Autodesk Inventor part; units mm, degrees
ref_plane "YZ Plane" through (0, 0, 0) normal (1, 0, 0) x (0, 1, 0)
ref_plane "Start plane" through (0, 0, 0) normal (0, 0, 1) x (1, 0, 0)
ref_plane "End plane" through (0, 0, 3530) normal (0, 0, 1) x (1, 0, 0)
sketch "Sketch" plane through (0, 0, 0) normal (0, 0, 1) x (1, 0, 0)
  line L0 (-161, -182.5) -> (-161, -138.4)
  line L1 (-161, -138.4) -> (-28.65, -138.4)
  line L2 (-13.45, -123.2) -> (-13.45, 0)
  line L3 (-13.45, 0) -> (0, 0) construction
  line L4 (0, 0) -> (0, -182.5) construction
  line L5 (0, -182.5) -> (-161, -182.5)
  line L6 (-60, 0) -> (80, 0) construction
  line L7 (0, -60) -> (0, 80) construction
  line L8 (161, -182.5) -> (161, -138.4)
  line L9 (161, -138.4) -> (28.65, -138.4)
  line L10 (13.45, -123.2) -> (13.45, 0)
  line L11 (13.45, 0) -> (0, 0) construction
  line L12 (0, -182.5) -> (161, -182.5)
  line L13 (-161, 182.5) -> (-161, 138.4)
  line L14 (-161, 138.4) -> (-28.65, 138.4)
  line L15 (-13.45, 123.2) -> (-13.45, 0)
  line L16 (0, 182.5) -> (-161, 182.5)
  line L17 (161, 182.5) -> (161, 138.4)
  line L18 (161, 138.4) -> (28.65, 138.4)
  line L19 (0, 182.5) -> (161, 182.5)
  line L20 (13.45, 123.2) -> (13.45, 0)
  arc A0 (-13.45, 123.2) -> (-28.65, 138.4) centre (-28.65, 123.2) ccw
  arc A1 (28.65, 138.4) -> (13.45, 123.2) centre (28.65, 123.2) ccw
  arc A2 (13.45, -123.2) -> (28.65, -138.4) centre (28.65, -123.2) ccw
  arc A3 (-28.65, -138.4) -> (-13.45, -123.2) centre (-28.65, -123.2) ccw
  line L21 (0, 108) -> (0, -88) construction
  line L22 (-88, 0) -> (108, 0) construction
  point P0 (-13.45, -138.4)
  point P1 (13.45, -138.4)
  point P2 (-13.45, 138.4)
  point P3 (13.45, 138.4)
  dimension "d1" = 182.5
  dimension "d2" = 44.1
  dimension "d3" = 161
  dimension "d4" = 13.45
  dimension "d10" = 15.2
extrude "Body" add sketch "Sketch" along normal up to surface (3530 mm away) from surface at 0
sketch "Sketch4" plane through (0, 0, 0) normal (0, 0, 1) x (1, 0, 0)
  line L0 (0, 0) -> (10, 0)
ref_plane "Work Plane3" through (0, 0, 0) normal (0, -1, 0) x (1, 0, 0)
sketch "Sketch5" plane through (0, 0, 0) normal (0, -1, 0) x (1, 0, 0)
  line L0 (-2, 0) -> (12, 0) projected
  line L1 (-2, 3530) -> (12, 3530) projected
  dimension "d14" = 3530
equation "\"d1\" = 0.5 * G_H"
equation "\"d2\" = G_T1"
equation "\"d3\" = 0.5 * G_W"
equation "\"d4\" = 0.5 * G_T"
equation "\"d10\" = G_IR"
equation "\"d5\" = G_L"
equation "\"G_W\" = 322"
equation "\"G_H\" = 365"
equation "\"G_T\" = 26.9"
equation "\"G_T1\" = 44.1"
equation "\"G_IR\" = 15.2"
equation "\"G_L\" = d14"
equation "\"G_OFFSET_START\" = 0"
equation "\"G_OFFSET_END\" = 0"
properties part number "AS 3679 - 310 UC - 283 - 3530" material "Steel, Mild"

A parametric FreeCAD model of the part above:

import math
import FreeCAD as App
import Part
import Sketcher
Q = App.Units.Quantity

doc = App.newDocument("Part")
body = doc.addObject("PartDesign::Body", "Body")

# Sketch on XY plane
sketch1 = body.newObject("Sketcher::SketchObject", "Sketch")
sketch1.AttachmentSupport = (doc.getObject("XY_Plane"), [""])
sketch1.MapMode = "FlatFace"
sketch1.addGeometry(Part.LineSegment(App.Vector(-161, -138, 0), App.Vector(-161, -182, 0)), False)
sketch1.addGeometry(Part.LineSegment(App.Vector(-161, -182, 0), App.Vector(161, -182, 0)), False)
sketch1.addGeometry(Part.LineSegment(App.Vector(161, -182, 0), App.Vector(161, -138, 0)), False)
sketch1.addGeometry(Part.LineSegment(App.Vector(161, -138, 0), App.Vector(29, -138, 0)), False)
sketch1.addGeometry(Part.ArcOfCircle(Part.Circle(App.Vector(29, -123, 0), App.Vector(0, 0, 1), 15), math.radians(180), math.radians(270)), False)
sketch1.addGeometry(Part.LineSegment(App.Vector(13, -123, 0), App.Vector(13, 123, 0)), False)
sketch1.addGeometry(Part.ArcOfCircle(Part.Circle(App.Vector(29, 123, 0), App.Vector(0, 0, 1), 15), math.radians(90), math.radians(180)), False)
sketch1.addGeometry(Part.LineSegment(App.Vector(29, 138, 0), App.Vector(161, 138, 0)), False)
sketch1.addGeometry(Part.LineSegment(App.Vector(161, 138, 0), App.Vector(161, 182, 0)), False)
sketch1.addGeometry(Part.LineSegment(App.Vector(161, 182, 0), App.Vector(-161, 182, 0)), False)
sketch1.addGeometry(Part.LineSegment(App.Vector(-161, 182, 0), App.Vector(-161, 138, 0)), False)
sketch1.addGeometry(Part.LineSegment(App.Vector(-161, 138, 0), App.Vector(-29, 138, 0)), False)
sketch1.addGeometry(Part.ArcOfCircle(Part.Circle(App.Vector(-29, 123, 0), App.Vector(0, 0, 1), 15), math.radians(0), math.radians(90)), False)
sketch1.addGeometry(Part.LineSegment(App.Vector(-13, 123, 0), App.Vector(-13, -123, 0)), False)
sketch1.addGeometry(Part.ArcOfCircle(Part.Circle(App.Vector(-29, -123, 0), App.Vector(0, 0, 1), 15), math.radians(-90), math.radians(0)), False)
sketch1.addGeometry(Part.LineSegment(App.Vector(-29, -138, 0), App.Vector(-161, -138, 0)), False)
sketch1.addConstraint(Sketcher.Constraint("Coincident", 0, 2, 1, 1))
sketch1.addConstraint(Sketcher.Constraint("Coincident", 1, 2, 2, 1))
sketch1.addConstraint(Sketcher.Constraint("Coincident", 2, 2, 3, 1))
sketch1.addConstraint(Sketcher.Constraint("Tangent", 3, 2, 4, 2))
sketch1.addConstraint(Sketcher.Constraint("Tangent", 4, 1, 5, 1))
sketch1.addConstraint(Sketcher.Constraint("Tangent", 5, 2, 6, 2))
sketch1.addConstraint(Sketcher.Constraint("Tangent", 6, 1, 7, 1))
sketch1.addConstraint(Sketcher.Constraint("Coincident", 7, 2, 8, 1))
sketch1.addConstraint(Sketcher.Constraint("Coincident", 8, 2, 9, 1))
sketch1.addConstraint(Sketcher.Constraint("Coincident", 9, 2, 10, 1))
sketch1.addConstraint(Sketcher.Constraint("Coincident", 10, 2, 11, 1))
sketch1.addConstraint(Sketcher.Constraint("Tangent", 11, 2, 12, 2))
sketch1.addConstraint(Sketcher.Constraint("Tangent", 12, 1, 13, 1))
sketch1.addConstraint(Sketcher.Constraint("Tangent", 13, 2, 14, 2))
sketch1.addConstraint(Sketcher.Constraint("Tangent", 14, 1, 15, 1))
sketch1.addConstraint(Sketcher.Constraint("Coincident", 15, 2, 0, 1))
sketch1.addConstraint(Sketcher.Constraint("Vertical", 0))
sketch1.addConstraint(Sketcher.Constraint("Horizontal", 1))
sketch1.addConstraint(Sketcher.Constraint("Vertical", 2))
sketch1.addConstraint(Sketcher.Constraint("Horizontal", 3))
sketch1.addConstraint(Sketcher.Constraint("Vertical", 5))
sketch1.addConstraint(Sketcher.Constraint("Horizontal", 7))
sketch1.addConstraint(Sketcher.Constraint("Vertical", 8))
sketch1.addConstraint(Sketcher.Constraint("Horizontal", 9))
sketch1.addConstraint(Sketcher.Constraint("Vertical", 10))
sketch1.addConstraint(Sketcher.Constraint("Horizontal", 11))
sketch1.addConstraint(Sketcher.Constraint("Vertical", 13))
sketch1.addConstraint(Sketcher.Constraint("Horizontal", 15))
sketch1.addConstraint(Sketcher.Constraint("Equal", 4, 6))
sketch1.addConstraint(Sketcher.Constraint("Equal", 6, 12))
sketch1.addConstraint(Sketcher.Constraint("Equal", 12, 14))
sketch1.addConstraint(Sketcher.Constraint("Symmetric", 4, 3, 12, 3, -1, 1))
sketch1.addConstraint(Sketcher.Constraint("Symmetric", 0, 2, 8, 2, -1, 1))
sketch1.addConstraint(Sketcher.Constraint("Symmetric", 7, 2, 10, 2, -2))
sketch1.addConstraint(Sketcher.Constraint("Symmetric", 2, 2, 15, 2, -2))
sketch1.addConstraint(Sketcher.Constraint("Radius", 4, Q("15.2 mm")))
sketch1.addConstraint(Sketcher.Constraint("DistanceY", 0, 2, 0, 1, Q("44.1 mm")))
sketch1.addConstraint(Sketcher.Constraint("DistanceX", 0, 2, -1, 1, Q("161 mm")))
sketch1.addConstraint(Sketcher.Constraint("DistanceY", 0, 2, -1, 1, Q("182.5 mm")))
sketch1.addConstraint(Sketcher.Constraint("DistanceX", -1, 1, 4, 1, Q("13.45 mm")))
pad1 = body.newObject("PartDesign::Pad", "Pad")
pad1.Profile = sketch1
pad1.Length = 3530

doc.recompute()
